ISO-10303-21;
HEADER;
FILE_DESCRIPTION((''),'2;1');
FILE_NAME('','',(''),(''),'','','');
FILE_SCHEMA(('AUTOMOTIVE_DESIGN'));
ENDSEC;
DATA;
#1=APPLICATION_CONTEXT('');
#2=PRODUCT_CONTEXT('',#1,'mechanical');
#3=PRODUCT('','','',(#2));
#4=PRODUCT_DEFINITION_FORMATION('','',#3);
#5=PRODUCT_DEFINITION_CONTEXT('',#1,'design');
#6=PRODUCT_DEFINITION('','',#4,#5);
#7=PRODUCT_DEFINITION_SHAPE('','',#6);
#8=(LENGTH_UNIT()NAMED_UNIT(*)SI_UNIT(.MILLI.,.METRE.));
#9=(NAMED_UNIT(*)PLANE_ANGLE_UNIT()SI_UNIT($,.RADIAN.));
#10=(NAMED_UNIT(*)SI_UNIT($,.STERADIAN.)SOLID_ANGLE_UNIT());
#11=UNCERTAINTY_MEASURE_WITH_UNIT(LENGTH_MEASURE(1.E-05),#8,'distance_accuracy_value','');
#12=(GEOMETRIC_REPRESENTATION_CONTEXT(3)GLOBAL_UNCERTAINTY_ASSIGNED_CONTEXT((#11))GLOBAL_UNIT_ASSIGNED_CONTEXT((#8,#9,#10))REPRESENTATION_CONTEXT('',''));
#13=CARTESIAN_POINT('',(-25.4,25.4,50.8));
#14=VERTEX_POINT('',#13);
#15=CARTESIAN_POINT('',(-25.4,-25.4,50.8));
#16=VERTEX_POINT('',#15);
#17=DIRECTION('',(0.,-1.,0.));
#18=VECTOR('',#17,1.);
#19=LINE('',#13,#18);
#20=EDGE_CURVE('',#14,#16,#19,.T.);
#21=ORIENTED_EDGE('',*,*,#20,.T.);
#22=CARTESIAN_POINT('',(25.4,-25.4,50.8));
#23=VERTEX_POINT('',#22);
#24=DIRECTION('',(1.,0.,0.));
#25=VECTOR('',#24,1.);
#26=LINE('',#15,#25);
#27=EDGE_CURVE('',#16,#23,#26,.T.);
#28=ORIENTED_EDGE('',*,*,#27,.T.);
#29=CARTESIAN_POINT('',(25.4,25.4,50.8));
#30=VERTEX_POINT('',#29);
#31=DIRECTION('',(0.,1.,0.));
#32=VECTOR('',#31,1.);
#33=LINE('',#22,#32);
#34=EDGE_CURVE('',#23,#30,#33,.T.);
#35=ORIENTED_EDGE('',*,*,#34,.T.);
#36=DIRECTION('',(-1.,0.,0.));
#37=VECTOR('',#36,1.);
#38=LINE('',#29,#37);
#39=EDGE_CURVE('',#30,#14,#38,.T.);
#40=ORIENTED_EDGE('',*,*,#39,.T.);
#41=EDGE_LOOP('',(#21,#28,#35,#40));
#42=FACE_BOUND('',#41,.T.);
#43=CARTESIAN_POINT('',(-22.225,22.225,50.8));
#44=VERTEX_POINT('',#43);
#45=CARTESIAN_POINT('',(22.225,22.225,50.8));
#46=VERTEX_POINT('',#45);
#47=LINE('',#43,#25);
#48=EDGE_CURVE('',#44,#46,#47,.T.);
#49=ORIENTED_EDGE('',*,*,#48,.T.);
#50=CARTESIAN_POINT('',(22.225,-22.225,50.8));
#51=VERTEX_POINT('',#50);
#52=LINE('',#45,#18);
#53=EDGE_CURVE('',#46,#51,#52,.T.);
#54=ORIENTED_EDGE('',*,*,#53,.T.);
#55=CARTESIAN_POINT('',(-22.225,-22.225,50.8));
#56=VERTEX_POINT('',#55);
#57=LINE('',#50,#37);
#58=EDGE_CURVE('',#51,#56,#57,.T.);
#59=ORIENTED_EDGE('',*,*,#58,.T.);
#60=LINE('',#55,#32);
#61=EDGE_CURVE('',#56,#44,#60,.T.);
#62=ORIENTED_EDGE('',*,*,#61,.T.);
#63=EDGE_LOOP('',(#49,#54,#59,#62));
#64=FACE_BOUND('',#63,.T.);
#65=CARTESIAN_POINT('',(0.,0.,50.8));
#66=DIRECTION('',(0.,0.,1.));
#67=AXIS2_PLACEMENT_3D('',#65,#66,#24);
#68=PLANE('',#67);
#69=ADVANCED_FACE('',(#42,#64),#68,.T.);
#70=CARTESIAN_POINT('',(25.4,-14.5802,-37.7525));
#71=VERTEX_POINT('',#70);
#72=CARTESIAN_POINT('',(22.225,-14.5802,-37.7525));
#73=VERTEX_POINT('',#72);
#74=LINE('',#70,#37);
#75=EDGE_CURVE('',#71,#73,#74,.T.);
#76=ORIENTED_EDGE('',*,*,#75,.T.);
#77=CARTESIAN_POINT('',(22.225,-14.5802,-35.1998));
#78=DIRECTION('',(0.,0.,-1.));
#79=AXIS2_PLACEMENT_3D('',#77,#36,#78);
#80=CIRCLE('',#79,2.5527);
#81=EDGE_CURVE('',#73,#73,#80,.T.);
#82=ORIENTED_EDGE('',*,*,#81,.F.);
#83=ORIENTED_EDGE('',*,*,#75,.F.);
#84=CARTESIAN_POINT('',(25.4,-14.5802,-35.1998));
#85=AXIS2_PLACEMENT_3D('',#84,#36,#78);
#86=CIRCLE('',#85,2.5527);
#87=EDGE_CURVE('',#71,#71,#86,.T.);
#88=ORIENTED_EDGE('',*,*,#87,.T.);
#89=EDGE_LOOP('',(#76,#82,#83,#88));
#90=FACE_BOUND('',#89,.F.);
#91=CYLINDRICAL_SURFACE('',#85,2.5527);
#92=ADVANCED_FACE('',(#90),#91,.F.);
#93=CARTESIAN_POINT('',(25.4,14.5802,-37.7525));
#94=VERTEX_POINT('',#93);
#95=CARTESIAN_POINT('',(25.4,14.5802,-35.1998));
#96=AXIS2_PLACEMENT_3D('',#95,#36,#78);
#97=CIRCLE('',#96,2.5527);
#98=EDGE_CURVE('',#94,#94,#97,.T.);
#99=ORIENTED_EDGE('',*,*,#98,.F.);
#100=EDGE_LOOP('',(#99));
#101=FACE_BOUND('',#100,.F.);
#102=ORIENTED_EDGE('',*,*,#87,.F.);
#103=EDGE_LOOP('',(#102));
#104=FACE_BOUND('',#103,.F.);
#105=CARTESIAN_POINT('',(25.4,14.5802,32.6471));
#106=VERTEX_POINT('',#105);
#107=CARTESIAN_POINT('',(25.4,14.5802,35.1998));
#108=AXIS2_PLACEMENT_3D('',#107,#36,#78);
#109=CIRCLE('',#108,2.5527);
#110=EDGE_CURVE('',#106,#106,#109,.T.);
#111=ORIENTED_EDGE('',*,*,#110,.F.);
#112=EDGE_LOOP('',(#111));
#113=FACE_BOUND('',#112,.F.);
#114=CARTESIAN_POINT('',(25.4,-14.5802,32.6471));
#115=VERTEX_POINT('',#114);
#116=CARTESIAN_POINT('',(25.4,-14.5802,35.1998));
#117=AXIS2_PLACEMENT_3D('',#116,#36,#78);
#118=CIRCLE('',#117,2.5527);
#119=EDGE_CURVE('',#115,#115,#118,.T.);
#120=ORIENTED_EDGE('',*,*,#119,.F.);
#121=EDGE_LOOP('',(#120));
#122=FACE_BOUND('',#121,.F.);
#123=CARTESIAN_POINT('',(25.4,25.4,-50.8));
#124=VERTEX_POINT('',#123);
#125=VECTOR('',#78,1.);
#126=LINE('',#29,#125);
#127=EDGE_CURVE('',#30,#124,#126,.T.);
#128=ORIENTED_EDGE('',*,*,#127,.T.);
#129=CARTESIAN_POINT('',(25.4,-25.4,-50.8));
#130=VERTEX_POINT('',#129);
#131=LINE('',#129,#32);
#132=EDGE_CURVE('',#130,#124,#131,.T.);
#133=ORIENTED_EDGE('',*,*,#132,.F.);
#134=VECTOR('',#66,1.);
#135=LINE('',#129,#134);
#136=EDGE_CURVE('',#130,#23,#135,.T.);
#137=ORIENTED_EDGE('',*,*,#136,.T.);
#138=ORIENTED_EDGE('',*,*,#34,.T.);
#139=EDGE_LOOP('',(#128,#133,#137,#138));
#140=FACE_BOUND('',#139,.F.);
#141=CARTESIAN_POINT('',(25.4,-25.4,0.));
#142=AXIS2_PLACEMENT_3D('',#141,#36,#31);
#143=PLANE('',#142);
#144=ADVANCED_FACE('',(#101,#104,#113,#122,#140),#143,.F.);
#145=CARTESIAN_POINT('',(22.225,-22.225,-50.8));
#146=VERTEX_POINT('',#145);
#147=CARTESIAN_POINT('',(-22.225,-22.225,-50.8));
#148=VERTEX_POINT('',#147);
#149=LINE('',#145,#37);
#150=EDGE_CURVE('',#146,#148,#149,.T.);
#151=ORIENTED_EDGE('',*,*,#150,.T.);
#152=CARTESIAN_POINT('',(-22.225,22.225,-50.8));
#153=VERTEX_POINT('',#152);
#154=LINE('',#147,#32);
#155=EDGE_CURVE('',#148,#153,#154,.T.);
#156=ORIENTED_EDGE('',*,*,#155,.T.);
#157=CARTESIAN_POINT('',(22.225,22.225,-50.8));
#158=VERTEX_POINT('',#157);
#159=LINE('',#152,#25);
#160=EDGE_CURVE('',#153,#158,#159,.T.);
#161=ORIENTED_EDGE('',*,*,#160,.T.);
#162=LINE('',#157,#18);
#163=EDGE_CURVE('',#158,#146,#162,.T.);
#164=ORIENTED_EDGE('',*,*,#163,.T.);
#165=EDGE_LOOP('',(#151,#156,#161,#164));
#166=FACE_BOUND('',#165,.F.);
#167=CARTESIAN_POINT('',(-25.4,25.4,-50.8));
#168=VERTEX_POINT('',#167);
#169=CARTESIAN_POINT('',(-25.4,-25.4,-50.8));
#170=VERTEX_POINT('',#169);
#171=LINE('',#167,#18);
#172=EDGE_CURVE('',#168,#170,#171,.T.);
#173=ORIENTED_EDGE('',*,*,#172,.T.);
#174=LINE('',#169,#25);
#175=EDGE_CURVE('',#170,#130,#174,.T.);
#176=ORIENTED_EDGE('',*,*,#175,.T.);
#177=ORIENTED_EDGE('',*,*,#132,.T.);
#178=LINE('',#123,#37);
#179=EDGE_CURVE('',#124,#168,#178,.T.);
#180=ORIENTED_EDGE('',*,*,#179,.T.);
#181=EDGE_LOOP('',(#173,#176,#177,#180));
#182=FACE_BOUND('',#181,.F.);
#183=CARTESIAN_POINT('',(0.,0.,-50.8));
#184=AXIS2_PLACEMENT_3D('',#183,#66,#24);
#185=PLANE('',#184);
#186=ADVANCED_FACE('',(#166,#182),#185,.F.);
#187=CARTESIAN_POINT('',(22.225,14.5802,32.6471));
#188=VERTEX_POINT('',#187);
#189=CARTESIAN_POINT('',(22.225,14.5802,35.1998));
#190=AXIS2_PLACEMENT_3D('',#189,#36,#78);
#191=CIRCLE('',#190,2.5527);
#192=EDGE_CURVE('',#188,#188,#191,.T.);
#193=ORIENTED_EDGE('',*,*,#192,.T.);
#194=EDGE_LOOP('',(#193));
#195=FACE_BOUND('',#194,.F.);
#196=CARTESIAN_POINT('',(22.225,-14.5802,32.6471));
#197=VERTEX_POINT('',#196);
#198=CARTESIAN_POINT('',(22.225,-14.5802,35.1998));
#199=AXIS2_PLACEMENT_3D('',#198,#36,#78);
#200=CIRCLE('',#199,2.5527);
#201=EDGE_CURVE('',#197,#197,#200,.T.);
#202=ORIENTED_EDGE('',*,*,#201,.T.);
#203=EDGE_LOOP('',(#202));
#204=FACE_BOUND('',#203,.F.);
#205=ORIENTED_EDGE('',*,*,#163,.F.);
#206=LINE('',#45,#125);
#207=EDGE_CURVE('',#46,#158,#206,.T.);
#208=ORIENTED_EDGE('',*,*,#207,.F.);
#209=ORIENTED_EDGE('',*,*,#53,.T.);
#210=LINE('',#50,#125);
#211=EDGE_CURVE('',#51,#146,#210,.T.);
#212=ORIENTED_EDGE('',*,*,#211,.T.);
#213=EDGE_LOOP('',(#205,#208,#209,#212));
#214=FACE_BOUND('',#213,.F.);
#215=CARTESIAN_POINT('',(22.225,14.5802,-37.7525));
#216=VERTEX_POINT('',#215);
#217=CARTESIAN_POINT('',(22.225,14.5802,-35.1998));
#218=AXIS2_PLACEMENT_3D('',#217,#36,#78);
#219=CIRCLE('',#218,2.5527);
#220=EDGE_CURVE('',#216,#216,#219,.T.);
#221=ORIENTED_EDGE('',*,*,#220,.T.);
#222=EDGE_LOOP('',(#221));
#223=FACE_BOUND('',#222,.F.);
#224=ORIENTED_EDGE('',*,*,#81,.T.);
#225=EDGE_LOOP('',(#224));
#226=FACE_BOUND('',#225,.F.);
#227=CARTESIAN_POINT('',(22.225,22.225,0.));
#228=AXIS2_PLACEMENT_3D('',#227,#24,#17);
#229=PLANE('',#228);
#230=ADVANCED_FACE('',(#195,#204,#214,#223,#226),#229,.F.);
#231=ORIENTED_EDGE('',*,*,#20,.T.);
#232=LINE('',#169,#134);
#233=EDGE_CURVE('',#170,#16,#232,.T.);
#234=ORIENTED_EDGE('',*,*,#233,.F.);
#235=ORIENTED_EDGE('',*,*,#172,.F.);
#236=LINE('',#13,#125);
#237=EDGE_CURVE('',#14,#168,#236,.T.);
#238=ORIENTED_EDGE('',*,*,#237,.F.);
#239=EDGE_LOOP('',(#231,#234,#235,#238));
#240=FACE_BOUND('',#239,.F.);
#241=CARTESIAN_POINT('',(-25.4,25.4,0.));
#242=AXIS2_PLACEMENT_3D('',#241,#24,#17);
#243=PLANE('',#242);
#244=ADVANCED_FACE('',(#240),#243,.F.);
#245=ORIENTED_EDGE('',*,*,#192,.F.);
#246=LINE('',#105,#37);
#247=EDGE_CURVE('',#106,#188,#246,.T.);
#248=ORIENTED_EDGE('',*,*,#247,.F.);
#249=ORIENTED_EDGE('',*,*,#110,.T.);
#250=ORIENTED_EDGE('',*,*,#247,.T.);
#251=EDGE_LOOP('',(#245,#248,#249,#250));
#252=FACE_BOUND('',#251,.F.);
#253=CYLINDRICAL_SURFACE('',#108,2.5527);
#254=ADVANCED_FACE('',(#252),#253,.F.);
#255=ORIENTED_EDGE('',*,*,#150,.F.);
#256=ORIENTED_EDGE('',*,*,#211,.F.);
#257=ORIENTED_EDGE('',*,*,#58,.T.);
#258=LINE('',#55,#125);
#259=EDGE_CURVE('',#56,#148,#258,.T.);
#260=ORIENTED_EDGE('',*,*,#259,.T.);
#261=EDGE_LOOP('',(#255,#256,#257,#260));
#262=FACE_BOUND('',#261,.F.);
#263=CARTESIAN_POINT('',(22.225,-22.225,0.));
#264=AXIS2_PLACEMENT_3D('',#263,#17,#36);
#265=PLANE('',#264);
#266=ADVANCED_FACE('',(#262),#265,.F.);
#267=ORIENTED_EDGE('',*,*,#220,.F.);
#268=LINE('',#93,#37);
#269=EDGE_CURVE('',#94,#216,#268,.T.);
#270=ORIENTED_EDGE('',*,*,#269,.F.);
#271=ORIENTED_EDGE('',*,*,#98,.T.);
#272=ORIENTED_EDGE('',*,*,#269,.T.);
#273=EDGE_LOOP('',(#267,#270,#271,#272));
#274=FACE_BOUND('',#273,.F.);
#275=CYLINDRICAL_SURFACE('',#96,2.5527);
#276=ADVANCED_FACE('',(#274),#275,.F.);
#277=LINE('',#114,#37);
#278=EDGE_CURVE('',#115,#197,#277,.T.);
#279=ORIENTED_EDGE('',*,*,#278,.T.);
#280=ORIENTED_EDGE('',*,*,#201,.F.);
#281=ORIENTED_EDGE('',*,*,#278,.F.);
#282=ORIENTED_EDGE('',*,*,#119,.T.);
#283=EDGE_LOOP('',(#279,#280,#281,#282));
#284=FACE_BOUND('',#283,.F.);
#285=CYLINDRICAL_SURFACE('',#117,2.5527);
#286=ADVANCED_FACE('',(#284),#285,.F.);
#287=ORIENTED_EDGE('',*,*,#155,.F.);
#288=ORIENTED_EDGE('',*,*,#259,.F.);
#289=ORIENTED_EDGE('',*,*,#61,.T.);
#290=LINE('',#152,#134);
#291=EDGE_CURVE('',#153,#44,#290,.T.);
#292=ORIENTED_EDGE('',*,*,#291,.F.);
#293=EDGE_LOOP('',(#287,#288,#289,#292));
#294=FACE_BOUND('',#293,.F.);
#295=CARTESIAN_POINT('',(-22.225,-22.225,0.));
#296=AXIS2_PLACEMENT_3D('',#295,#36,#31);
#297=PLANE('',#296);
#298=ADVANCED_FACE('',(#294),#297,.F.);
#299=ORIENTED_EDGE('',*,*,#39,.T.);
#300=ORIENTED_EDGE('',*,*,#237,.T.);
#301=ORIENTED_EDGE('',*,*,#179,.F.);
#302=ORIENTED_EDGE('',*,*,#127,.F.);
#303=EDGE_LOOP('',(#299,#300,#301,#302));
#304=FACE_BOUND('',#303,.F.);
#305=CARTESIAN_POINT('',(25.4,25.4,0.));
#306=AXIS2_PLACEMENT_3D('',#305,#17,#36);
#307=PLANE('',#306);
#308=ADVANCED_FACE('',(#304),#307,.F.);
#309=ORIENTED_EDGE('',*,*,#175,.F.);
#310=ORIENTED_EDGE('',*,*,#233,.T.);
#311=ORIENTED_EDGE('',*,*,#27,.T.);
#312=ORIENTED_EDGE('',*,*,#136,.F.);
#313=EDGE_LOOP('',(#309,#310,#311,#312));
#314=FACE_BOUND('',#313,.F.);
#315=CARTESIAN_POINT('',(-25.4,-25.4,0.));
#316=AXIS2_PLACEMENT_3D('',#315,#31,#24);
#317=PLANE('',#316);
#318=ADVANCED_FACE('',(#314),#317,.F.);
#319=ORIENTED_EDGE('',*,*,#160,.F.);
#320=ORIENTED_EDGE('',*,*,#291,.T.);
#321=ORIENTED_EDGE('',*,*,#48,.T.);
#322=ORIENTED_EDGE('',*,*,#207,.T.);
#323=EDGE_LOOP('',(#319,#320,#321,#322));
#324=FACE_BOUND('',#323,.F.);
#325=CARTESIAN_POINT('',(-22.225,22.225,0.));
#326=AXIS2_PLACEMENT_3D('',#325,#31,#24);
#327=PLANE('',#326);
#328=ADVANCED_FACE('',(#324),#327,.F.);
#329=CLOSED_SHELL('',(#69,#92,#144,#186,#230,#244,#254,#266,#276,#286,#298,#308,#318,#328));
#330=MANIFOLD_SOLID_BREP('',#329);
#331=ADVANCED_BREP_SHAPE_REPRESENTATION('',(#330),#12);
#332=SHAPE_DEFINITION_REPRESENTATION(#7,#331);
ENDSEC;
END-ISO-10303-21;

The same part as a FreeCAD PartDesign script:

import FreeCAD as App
import Part
import Sketcher
Q = App.Units.Quantity


def add_polygon(sketch, points):
    """Adds a closed chain of lines whose ends are joined by coincident constraints."""
    first, n = sketch.GeometryCount, len(points)
    for a, b in zip(points, points[1:] + points[:1]):
        sketch.addGeometry(Part.LineSegment(App.Vector(*a, 0), App.Vector(*b, 0)), False)
    for i in range(n):
        sketch.addConstraint(Sketcher.Constraint("Coincident", first + i, 2, first + (i + 1) % n, 1))

doc = App.newDocument("Part")
params = doc.addObject("Spreadsheet::Sheet", "Params")
for row, (alias, value) in enumerate([
    ("sketch1_width", "2 in"),
    ("pad1_length", "4 in"),
    ("sketch2_diameter", "0.201 in"),
    ("hole_diameter", "0.201 in"),
    ("hole_depth", "0.125 in"),
], start=1):
    params.set(f"A{row}", alias)
    params.set(f"B{row}", "=" + value)
    params.setAlias(f"B{row}", alias)

body = doc.addObject("PartDesign::Body", "Body")

# Sketch on XY plane
sketch1 = doc.addObject("Sketcher::SketchObject", "Sketch")
body.addObject(sketch1)
sketch1.AttachmentSupport = (doc.XY_Plane, [""])
sketch1.MapMode = "FlatFace"
add_polygon(sketch1, [(-25, 25), (-25, -25), (25, -25), (25, 25)])  # lines 0-3
add_polygon(sketch1, [(-22, -22), (-22, 22), (22, 22), (22, -22)])  # lines 4-7
sketch1.addConstraint([
    Sketcher.Constraint("Vertical", 0),
    Sketcher.Constraint("Horizontal", 1),
    Sketcher.Constraint("Vertical", 2),
    Sketcher.Constraint("Horizontal", 3),
    Sketcher.Constraint("Vertical", 4),
    Sketcher.Constraint("Horizontal", 5),
    Sketcher.Constraint("Vertical", 6),
    Sketcher.Constraint("Horizontal", 7),
    Sketcher.Constraint("Symmetric", 0, 2, 2, 2, -1, 1),
    Sketcher.Constraint("Symmetric", 4, 2, 6, 2, -1, 1),
    Sketcher.Constraint("Equal", 3, 0),
    Sketcher.Constraint("Equal", 7, 4),
    Sketcher.Constraint("DistanceX", 1, 1, 1, 2, Q("2 in")),
    Sketcher.Constraint("DistanceX", 3, 2, 4, 2, Q("0.125 in")),
])
sketch1.setExpression("Constraints[20]", "Params.sketch1_width")
pad1 = doc.addObject("PartDesign::Pad", "Pad")
body.addObject(pad1)
pad1.Profile = sketch1
pad1.setExpression("Length", "Params.pad1_length")
pad1.Midplane = True

# Sketch on YZ plane
sketch2 = doc.addObject("Sketcher::SketchObject", "Sketch001")
body.addObject(sketch2)
sketch2.AttachmentSupport = (doc.YZ_Plane, [""])
sketch2.MapMode = "FlatFace"
sketch2.AttachmentOffset = App.Placement(App.Vector(0, 0, 1 * 25.4), App.Rotation())
sketch2.addGeometry([
    Part.Circle(App.Vector(35.2, -14.6, 0), App.Vector(0, 0, 1), 2.6),  # 0
    Part.Circle(App.Vector(35.2, 14.6, 0), App.Vector(0, 0, 1), 2.6),  # 1
    Part.Circle(App.Vector(14.6, 35.2, 0), App.Vector(0, 0, 1), 2.6),  # 2
    Part.Circle(App.Vector(-14.6, 35.2, 0), App.Vector(0, 0, 1), 2.6),  # 3
    Part.Circle(App.Vector(-35.2, 14.6, 0), App.Vector(0, 0, 1), 2.6),  # 4
    Part.Circle(App.Vector(-35.2, -14.6, 0), App.Vector(0, 0, 1), 2.6),  # 5
    Part.Circle(App.Vector(-14.6, -35.2, 0), App.Vector(0, 0, 1), 2.6),  # 6
    Part.Circle(App.Vector(14.6, -35.2, 0), App.Vector(0, 0, 1), 2.6),  # 7
], False)
sketch2.addConstraint([
    Sketcher.Constraint("Equal", 0, 1),
    Sketcher.Constraint("Equal", 1, 2),
    Sketcher.Constraint("Equal", 2, 3),
    Sketcher.Constraint("Equal", 3, 4),
    Sketcher.Constraint("Equal", 4, 5),
    Sketcher.Constraint("Equal", 5, 6),
    Sketcher.Constraint("Equal", 6, 7),
    Sketcher.Constraint("Symmetric", 0, 3, 4, 3, -1, 1),
    Sketcher.Constraint("Symmetric", 1, 3, 5, 3, -1, 1),
    Sketcher.Constraint("Symmetric", 2, 3, 6, 3, -1, 1),
    Sketcher.Constraint("Symmetric", 3, 3, 7, 3, -1, 1),
    Sketcher.Constraint("Symmetric", 2, 3, 3, 3, -2),
    Sketcher.Constraint("Symmetric", 1, 3, 4, 3, -2),
    Sketcher.Constraint("Diameter", 0, Q("0.201 in")),
    Sketcher.Constraint("DistanceX", 2, 3, 1, 3, Q("0.8118 in")),
    Sketcher.Constraint("DistanceY", 1, 3, 2, 3, Q("0.8118 in")),
    Sketcher.Constraint("DistanceX", -1, 1, 0, 3, Q("35.1998 mm")),
    Sketcher.Constraint("DistanceY", 0, 3, -1, 1, Q("14.5802 mm")),
])
sketch2.setExpression("Constraints[13]", "Params.sketch2_diameter")
doc.recompute()
hole = doc.addObject("PartDesign::Hole", "Hole")
body.addObject(hole)
hole.Profile = sketch2
hole.ThreadType = "None"
hole.setExpression("Diameter", "Params.hole_diameter")
hole.DepthType = "Dimension"
hole.setExpression("Depth", "Params.hole_depth")
hole.DrillPoint = "Flat"

doc.recompute()
